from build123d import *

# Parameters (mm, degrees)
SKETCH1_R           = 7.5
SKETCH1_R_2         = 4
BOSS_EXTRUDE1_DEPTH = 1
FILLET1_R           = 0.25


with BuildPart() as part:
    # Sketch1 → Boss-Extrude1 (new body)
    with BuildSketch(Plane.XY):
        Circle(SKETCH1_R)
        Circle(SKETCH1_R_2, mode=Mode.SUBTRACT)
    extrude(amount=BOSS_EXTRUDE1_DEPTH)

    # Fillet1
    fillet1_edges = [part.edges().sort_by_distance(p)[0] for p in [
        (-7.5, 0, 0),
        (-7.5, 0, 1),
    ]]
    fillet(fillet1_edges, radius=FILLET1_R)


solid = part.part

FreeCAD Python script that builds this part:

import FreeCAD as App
import Part
import Sketcher

V = App.Vector


def edges_at(feature, points):
    """Names of the edges that pass closest to the given points."""
    edges = feature.Shape.Edges
    near = lambda p: min(range(len(edges)), key=lambda i: edges[i].distToShape(Part.Vertex(*p))[0])
    return sorted({f"Edge{near(p) + 1}" for p in points})

doc = App.newDocument("Part")
body = doc.addObject("PartDesign::Body", "Body")

# Sketch on XY plane
sketch1 = body.newObject("Sketcher::SketchObject", "Sketch")
sketch1.AttachmentSupport = (doc.getObject("XY_Plane"), [""])
sketch1.MapMode = "FlatFace"
sketch1.addGeometry([
    Part.Circle(V(0, 0, 0), V(0, 0, 1), 7.5),
    Part.Circle(V(0, 0, 0), V(0, 0, 1), 4),
], False)
sketch1.addConstraint([
    Sketcher.Constraint("Coincident", 0, 3, -1, 1),
    Sketcher.Constraint("Coincident", 1, 3, -1, 1),
    Sketcher.Constraint("Diameter", 0, 15.0),
    Sketcher.Constraint("Diameter", 1, 8.0),
])
pad1 = body.newObject("PartDesign::Pad", "Pad")
pad1.Profile = sketch1
pad1.Length = 1
doc.recompute()

fillet = body.newObject("PartDesign::Fillet", "Fillet")
fillet.Base = (pad1, edges_at(pad1, [(-7.5, 0, 0), (-7.5, 0, 1)]))
fillet.Radius = 0.25

doc.recompute()
